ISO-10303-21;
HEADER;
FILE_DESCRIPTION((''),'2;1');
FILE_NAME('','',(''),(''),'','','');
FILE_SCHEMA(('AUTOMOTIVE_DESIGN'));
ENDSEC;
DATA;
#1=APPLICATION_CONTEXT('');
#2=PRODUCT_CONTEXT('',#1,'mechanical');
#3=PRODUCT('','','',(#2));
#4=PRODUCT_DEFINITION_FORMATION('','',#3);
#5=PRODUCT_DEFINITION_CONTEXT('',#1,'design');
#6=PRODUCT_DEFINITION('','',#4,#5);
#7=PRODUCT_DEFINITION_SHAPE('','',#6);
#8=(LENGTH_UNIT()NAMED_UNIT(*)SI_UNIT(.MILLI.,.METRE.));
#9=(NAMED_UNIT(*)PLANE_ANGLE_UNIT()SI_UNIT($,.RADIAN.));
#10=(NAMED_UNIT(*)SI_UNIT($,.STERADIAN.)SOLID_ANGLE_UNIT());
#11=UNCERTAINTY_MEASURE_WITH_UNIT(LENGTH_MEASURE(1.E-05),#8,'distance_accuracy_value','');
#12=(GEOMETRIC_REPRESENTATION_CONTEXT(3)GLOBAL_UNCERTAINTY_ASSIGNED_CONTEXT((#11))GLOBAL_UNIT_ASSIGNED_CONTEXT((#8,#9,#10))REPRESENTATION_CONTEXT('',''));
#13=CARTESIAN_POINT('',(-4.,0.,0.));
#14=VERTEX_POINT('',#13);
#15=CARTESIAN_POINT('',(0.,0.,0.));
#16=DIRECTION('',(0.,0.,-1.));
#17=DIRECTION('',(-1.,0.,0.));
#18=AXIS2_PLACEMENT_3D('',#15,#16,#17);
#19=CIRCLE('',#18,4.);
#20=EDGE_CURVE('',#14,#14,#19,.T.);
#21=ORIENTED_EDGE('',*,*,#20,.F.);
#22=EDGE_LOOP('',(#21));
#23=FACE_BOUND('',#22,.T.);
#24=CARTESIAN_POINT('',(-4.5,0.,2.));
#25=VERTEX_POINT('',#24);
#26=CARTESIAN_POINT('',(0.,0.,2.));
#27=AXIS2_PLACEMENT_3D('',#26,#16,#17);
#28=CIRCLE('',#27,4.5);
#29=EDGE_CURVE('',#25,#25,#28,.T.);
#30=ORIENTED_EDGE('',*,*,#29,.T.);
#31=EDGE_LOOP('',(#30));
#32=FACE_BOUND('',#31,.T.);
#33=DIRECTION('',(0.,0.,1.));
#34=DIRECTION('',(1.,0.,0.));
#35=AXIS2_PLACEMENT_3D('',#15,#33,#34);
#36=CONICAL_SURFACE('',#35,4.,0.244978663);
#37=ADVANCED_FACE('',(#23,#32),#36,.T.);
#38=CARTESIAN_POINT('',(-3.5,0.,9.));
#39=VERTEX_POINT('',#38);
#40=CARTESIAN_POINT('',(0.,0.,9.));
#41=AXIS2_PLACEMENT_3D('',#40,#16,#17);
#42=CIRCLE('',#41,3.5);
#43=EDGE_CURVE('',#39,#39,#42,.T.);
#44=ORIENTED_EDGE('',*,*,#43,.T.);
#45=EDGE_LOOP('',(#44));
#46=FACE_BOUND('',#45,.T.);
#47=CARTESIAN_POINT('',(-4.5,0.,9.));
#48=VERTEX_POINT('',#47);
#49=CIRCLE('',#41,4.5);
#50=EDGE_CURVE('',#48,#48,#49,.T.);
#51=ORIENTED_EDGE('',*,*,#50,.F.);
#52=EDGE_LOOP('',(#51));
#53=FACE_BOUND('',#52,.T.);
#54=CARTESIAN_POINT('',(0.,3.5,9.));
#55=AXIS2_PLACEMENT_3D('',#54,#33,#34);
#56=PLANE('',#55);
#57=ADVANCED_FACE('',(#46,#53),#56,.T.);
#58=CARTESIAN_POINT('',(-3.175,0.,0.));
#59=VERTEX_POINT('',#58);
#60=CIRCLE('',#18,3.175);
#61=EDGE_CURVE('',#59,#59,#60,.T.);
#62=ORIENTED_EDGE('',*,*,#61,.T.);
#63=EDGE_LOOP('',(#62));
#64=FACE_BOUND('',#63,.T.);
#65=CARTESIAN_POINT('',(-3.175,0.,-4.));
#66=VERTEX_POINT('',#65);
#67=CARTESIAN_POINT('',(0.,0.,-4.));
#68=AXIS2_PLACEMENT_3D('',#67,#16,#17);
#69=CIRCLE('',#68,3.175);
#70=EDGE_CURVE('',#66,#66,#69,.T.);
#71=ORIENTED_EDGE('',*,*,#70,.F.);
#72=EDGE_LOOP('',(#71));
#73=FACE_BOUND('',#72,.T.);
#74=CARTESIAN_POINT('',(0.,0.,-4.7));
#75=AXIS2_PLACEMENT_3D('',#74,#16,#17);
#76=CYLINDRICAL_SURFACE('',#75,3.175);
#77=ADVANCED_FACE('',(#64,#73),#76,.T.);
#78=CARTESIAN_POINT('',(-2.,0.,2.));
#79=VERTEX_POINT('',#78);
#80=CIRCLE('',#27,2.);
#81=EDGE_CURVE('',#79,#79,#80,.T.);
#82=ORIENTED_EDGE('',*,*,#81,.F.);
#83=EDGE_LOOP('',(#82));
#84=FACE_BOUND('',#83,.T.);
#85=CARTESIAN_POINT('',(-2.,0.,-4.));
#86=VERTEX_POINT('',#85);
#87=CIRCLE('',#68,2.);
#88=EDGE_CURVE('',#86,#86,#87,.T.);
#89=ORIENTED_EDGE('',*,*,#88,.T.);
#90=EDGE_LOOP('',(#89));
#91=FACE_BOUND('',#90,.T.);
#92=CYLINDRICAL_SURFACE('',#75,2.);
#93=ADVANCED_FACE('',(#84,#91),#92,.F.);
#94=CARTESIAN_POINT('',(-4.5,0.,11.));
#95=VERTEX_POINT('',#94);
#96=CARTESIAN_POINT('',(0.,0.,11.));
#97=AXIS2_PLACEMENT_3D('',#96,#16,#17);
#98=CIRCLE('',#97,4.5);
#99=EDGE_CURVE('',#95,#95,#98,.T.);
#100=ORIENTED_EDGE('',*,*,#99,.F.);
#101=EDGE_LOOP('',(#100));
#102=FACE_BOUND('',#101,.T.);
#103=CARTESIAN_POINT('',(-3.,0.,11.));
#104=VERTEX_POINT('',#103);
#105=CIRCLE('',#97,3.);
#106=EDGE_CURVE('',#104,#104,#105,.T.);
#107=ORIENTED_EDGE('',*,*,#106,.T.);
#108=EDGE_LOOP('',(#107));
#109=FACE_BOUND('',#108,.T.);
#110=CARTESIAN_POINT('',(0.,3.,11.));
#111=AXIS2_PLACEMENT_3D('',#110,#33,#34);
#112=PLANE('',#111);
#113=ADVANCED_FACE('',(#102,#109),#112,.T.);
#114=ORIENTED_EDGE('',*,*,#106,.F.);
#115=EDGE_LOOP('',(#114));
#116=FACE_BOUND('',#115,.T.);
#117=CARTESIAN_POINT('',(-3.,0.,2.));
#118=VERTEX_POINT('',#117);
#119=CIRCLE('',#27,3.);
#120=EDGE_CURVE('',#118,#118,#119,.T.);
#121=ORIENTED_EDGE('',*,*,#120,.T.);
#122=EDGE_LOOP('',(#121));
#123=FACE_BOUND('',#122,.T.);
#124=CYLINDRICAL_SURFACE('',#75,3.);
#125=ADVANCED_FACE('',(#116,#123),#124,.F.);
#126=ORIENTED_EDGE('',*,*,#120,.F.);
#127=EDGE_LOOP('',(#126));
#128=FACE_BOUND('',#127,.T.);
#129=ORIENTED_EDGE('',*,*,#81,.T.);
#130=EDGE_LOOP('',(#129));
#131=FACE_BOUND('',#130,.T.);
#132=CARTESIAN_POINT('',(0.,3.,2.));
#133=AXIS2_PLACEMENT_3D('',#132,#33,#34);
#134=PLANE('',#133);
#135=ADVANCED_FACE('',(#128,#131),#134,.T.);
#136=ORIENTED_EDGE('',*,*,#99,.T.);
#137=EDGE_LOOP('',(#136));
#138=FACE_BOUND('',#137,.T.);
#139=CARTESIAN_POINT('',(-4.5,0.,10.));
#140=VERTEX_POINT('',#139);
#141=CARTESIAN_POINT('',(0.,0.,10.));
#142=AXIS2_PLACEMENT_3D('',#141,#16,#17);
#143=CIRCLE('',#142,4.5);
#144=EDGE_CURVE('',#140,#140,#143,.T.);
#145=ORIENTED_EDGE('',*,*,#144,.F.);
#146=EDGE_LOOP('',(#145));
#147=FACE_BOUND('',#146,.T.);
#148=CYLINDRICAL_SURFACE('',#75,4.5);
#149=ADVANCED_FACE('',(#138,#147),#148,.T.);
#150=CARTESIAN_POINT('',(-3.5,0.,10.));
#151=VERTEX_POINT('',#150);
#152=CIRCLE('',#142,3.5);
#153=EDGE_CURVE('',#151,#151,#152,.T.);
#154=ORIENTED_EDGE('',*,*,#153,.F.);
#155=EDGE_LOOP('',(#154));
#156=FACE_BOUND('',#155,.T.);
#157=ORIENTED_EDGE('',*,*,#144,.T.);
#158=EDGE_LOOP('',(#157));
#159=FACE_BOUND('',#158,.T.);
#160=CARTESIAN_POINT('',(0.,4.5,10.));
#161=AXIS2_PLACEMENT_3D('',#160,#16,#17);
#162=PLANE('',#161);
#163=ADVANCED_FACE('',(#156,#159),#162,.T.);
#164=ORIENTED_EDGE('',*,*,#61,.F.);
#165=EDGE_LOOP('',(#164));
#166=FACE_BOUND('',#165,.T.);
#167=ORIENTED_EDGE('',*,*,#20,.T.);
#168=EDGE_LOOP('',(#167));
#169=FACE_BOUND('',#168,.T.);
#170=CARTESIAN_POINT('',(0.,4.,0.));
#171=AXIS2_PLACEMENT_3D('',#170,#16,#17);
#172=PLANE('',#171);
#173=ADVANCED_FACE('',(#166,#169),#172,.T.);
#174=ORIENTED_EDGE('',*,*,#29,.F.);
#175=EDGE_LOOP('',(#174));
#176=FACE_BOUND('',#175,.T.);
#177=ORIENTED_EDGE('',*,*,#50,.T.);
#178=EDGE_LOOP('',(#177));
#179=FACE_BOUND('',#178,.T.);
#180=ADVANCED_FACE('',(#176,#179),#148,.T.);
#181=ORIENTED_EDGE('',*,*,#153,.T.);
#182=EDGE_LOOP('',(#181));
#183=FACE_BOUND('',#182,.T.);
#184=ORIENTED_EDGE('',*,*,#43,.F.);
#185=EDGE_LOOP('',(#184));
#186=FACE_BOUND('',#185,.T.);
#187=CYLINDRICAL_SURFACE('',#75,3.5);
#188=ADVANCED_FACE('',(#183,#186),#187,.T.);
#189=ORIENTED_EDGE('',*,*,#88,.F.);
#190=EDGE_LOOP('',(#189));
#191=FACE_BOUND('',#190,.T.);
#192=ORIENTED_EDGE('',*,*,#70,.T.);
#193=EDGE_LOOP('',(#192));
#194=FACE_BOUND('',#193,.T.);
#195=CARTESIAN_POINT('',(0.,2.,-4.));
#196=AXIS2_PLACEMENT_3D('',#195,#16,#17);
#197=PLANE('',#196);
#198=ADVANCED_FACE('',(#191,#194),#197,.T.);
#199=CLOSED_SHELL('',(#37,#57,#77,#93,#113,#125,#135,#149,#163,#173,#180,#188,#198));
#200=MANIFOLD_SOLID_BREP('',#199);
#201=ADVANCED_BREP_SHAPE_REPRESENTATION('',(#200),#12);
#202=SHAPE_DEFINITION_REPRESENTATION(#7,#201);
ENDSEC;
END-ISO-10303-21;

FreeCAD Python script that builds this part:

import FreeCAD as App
import Part
import Sketcher

V = App.Vector


def add_polygon(sketch, points):
    """Adds a closed chain of lines whose ends are joined by coincident constraints."""
    first, n = sketch.GeometryCount, len(points)
    for a, b in zip(points, points[1:] + points[:1]):
        sketch.addGeometry(Part.LineSegment(App.Vector(*a, 0), App.Vector(*b, 0)), False)
    for i in range(n):
        sketch.addConstraint(Sketcher.Constraint("Coincident", first + i, 2, first + (i + 1) % n, 1))

doc = App.newDocument("Part")
body = doc.addObject("PartDesign::Body", "Body")

# Sketch on YZ plane
sketch1 = body.newObject("Sketcher::SketchObject", "Sketch")
sketch1.AttachmentSupport = (doc.getObject("YZ_Plane"), [""])
sketch1.MapMode = "FlatFace"
add_polygon(sketch1, [(3, 11), (3, 2), (2, 2), (2, -4), (3.2, -4), (3.2, 0), (4, 0), (4.5, 2), (4.5, 9), (3.5, 9), (3.5, 10), (4.5, 10), (4.5, 11)])  # lines 0-12
sketch1.addConstraint([
    Sketcher.Constraint("Vertical", 0),
    Sketcher.Constraint("Horizontal", 1),
    Sketcher.Constraint("Vertical", 2),
    Sketcher.Constraint("Horizontal", 3),
    Sketcher.Constraint("Vertical", 4),
    Sketcher.Constraint("Horizontal", 5),
    Sketcher.Constraint("Vertical", 7),
    Sketcher.Constraint("Horizontal", 8),
    Sketcher.Constraint("Vertical", 9),
    Sketcher.Constraint("Horizontal", 10),
    Sketcher.Constraint("Vertical", 11),
    Sketcher.Constraint("Horizontal", 12),
    Sketcher.Constraint("PointOnObject", 4, 2, -1),
    Sketcher.Constraint("Horizontal", 1, 2, 6, 2),
    Sketcher.Constraint("Vertical", 7, 2, 10, 2),
    Sketcher.Constraint("Equal", 1, 8),
    Sketcher.Constraint("Equal", 10, 9),
    Sketcher.Constraint("Equal", 9, 11),
    Sketcher.Constraint("DistanceX", 1, 2, 1, 1, 1.0),
    Sketcher.Constraint("DistanceY", 0, 2, 0, 1, 9.0),
    Sketcher.Constraint("DistanceY", 2, 2, 2, 1, 6.0),
    Sketcher.Constraint("DistanceY", 4, 1, 4, 2, 4.0),
    Sketcher.Constraint("DistanceX", 12, 2, 12, 1, 1.5),
    Sketcher.Constraint("DistanceX", -1, 1, 0, 2, 3.0),
    Sketcher.Constraint("DistanceX", -1, 1, 5, 2, 4.0),
    Sketcher.Constraint("DistanceX", 3, 1, 3, 2, 1.175),
])
revolution = body.newObject("PartDesign::Revolution", "Revolution")
revolution.Profile = sketch1
revolution.ReferenceAxis = (sketch1, ["V_Axis"])
revolution.Angle = 360

doc.recompute()
